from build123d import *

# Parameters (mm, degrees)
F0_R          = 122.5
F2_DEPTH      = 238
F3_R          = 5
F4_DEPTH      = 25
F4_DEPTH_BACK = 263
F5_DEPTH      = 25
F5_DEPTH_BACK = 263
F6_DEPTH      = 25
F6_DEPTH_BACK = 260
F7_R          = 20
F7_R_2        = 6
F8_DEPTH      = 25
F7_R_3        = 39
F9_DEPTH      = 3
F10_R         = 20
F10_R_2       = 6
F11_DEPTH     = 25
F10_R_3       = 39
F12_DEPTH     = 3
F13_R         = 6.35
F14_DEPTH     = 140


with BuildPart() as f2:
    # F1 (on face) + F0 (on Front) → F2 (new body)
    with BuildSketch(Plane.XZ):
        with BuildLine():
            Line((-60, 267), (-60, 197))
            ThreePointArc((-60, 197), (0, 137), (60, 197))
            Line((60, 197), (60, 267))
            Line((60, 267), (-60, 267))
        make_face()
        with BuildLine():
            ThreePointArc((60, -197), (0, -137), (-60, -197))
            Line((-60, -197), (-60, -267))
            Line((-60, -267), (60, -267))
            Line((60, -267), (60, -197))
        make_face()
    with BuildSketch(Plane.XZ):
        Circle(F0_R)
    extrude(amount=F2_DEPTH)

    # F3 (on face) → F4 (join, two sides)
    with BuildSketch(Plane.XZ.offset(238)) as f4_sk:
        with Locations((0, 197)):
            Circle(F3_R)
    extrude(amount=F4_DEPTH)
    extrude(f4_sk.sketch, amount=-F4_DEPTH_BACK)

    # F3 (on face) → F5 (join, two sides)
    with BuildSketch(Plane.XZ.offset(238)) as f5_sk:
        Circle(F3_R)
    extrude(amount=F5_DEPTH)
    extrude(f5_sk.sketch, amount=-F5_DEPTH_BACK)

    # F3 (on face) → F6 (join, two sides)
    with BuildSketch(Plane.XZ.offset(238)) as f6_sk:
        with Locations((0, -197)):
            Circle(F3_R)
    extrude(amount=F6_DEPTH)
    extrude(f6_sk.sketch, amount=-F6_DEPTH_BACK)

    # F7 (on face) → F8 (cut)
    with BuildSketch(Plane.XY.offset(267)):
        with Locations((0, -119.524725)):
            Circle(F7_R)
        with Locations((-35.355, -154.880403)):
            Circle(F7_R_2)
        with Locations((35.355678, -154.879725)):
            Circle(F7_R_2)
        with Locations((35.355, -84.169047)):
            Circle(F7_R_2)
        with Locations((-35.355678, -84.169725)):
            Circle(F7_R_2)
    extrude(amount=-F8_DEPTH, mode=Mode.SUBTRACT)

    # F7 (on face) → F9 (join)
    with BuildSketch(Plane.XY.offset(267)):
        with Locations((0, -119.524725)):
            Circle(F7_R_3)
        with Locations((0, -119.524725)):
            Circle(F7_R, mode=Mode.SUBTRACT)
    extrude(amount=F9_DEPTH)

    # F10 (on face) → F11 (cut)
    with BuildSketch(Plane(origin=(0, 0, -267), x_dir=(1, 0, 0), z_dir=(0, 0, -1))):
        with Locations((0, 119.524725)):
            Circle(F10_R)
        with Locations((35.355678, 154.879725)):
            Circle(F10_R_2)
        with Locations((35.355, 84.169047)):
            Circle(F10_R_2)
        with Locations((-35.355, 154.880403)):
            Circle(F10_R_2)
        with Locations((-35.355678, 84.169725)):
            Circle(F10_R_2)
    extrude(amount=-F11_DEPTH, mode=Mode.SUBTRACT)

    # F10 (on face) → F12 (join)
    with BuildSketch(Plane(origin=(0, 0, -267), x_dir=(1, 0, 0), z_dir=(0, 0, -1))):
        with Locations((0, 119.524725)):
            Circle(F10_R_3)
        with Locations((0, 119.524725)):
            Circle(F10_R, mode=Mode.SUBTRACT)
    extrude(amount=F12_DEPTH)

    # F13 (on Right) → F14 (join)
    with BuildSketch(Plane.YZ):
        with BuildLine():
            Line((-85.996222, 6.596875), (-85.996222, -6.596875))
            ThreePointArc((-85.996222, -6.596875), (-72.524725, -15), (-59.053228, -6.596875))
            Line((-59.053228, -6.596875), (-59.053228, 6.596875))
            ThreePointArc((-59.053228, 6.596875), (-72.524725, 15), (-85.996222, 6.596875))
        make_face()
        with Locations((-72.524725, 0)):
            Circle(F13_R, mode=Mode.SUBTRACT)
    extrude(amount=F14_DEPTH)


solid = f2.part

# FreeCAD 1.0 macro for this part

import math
import FreeCAD as App
import Part
import Sketcher
Q = App.Units.Quantity

doc = App.newDocument("Part")
body = doc.addObject("PartDesign::Body", "Body")
body.AllowCompound = True

# Sketch on XZ plane
sketch1 = body.newObject("Sketcher::SketchObject", "Sketch")
sketch1.AttachmentSupport = (doc.getObject("XZ_Plane"), [""])
sketch1.MapMode = "FlatFace"
sketch1.addGeometry([
    Part.LineSegment(App.Vector(-60, 267, 0), App.Vector(-60, 197, 0)),  # 0
    Part.ArcOfCircle(Part.Circle(App.Vector(0, 197, 0), App.Vector(0, 0, 1), 60), math.radians(180), math.radians(360)),  # 1
    Part.LineSegment(App.Vector(60, 197, 0), App.Vector(60, 267, 0)),  # 2
    Part.LineSegment(App.Vector(60, 267, 0), App.Vector(-60, 267, 0)),  # 3
    Part.ArcOfCircle(Part.Circle(App.Vector(0, -197, 0), App.Vector(0, 0, 1), 60), math.radians(0), math.radians(180)),  # 4
    Part.LineSegment(App.Vector(-60, -197, 0), App.Vector(-60, -267, 0)),  # 5
    Part.LineSegment(App.Vector(-60, -267, 0), App.Vector(60, -267, 0)),  # 6
    Part.LineSegment(App.Vector(60, -267, 0), App.Vector(60, -197, 0)),  # 7
    Part.Circle(App.Vector(0, 0, 0), App.Vector(0, 0, 1), 122.5),  # 8
], False)
sketch1.addConstraint([
    Sketcher.Constraint("Tangent", 0, 2, 1, 1),
    Sketcher.Constraint("Tangent", 1, 2, 2, 1),
    Sketcher.Constraint("Coincident", 2, 2, 3, 1),
    Sketcher.Constraint("Coincident", 3, 2, 0, 1),
    Sketcher.Constraint("Tangent", 4, 2, 5, 1),
    Sketcher.Constraint("Coincident", 5, 2, 6, 1),
    Sketcher.Constraint("Coincident", 6, 2, 7, 1),
    Sketcher.Constraint("Tangent", 7, 2, 4, 1),
    Sketcher.Constraint("Vertical", 0),
    Sketcher.Constraint("Vertical", 2),
    Sketcher.Constraint("Horizontal", 3),
    Sketcher.Constraint("Vertical", 5),
    Sketcher.Constraint("Horizontal", 6),
    Sketcher.Constraint("Vertical", 7),
    Sketcher.Constraint("Coincident", 8, 3, -1, 1),
    Sketcher.Constraint("Equal", 1, 4),
    Sketcher.Constraint("Symmetric", 1, 3, 4, 3, -1, 1),
    Sketcher.Constraint("Symmetric", 3, 2, 5, 2, -1),
    Sketcher.Constraint("Diameter", 8, Q("245 mm")),
    Sketcher.Constraint("Radius", 1, Q("60 mm")),
    Sketcher.Constraint("DistanceY", 0, 2, 0, 1, Q("70 mm")),
    Sketcher.Constraint("DistanceY", -1, 1, 1, 3, Q("197 mm")),
])
pad1 = body.newObject("PartDesign::Pad", "Pad")
pad1.Profile = sketch1
pad1.Length = 238

# Sketch on XZ plane
sketch2 = body.newObject("Sketcher::SketchObject", "Sketch001")
sketch2.AttachmentSupport = (doc.getObject("XZ_Plane"), [""])
sketch2.MapMode = "FlatFace"
sketch2.AttachmentOffset = App.Placement(App.Vector(0, 0, 238), App.Rotation())
sketch2.addGeometry(Part.Circle(App.Vector(0, 197, 0), App.Vector(0, 0, 1), 5), False)
sketch2.addConstraint([
    Sketcher.Constraint("PointOnObject", 0, 3, -2),
    Sketcher.Constraint("Diameter", 0, Q("10 mm")),
    Sketcher.Constraint("DistanceY", -1, 1, 0, 3, Q("197 mm")),
])
pad2 = body.newObject("PartDesign::Pad", "Pad001")
pad2.Profile = sketch2
pad2.Type = "TwoLengths"
pad2.Length = 25
pad2.Length2 = 263

# Sketch on XZ plane
sketch3 = body.newObject("Sketcher::SketchObject", "Sketch002")
sketch3.AttachmentSupport = (doc.getObject("XZ_Plane"), [""])
sketch3.MapMode = "FlatFace"
sketch3.AttachmentOffset = App.Placement(App.Vector(0, 0, 238), App.Rotation())
sketch3.addGeometry(Part.Circle(App.Vector(0, 0, 0), App.Vector(0, 0, 1), 5), False)
sketch3.addConstraint([
    Sketcher.Constraint("Coincident", 0, 3, -1, 1),
    Sketcher.Constraint("Diameter", 0, Q("10 mm")),
])
pad3 = body.newObject("PartDesign::Pad", "Pad002")
pad3.Profile = sketch3
pad3.Type = "TwoLengths"
pad3.Length = 25
pad3.Length2 = 263

# Sketch on XZ plane
sketch4 = body.newObject("Sketcher::SketchObject", "Sketch003")
sketch4.AttachmentSupport = (doc.getObject("XZ_Plane"), [""])
sketch4.MapMode = "FlatFace"
sketch4.AttachmentOffset = App.Placement(App.Vector(0, 0, 238), App.Rotation())
sketch4.addGeometry(Part.Circle(App.Vector(0, -197, 0), App.Vector(0, 0, 1), 5), False)
sketch4.addConstraint([
    Sketcher.Constraint("PointOnObject", 0, 3, -2),
    Sketcher.Constraint("Diameter", 0, Q("10 mm")),
    Sketcher.Constraint("DistanceY", 0, 3, -1, 1, Q("197 mm")),
])
pad4 = body.newObject("PartDesign::Pad", "Pad003")
pad4.Profile = sketch4
pad4.Type = "TwoLengths"
pad4.Length = 25
pad4.Length2 = 260

# Sketch on XY plane
sketch5 = body.newObject("Sketcher::SketchObject", "Sketch004")
sketch5.AttachmentSupport = (doc.getObject("XY_Plane"), [""])
sketch5.MapMode = "FlatFace"
sketch5.AttachmentOffset = App.Placement(App.Vector(0, 0, 267), App.Rotation())
sketch5.addGeometry([
    Part.Circle(App.Vector(0, -119.524725, 0), App.Vector(0, 0, 1), 20),  # 0
    Part.Circle(App.Vector(-35.355, -154.880403, 0), App.Vector(0, 0, 1), 6),  # 1
    Part.Circle(App.Vector(35.355678, -154.879725, 0), App.Vector(0, 0, 1), 6),  # 2
    Part.Circle(App.Vector(35.355, -84.169047, 0), App.Vector(0, 0, 1), 6),  # 3
    Part.Circle(App.Vector(-35.355678, -84.169725, 0), App.Vector(0, 0, 1), 6),  # 4
], False)
sketch5.addConstraint([
    Sketcher.Constraint("Equal", 1, 2),
    Sketcher.Constraint("Equal", 2, 3),
    Sketcher.Constraint("Equal", 3, 4),
    Sketcher.Constraint("PointOnObject", 0, 3, -2),
    Sketcher.Constraint("Diameter", 0, Q("40 mm")),
    Sketcher.Constraint("Diameter", 1, Q("12 mm")),
    Sketcher.Constraint("DistanceX", 1, 3, 3, 3, Q("70.71 mm")),
    Sketcher.Constraint("DistanceY", 2, 3, 4, 3, Q("70.71 mm")),
    Sketcher.Constraint("DistanceX", 1, 3, -1, 1, Q("35.355 mm")),
    Sketcher.Constraint("DistanceY", 2, 3, 0, 3, Q("35.355 mm")),
    Sketcher.Constraint("DistanceX", 1, 3, 2, 3, Q("70.710678 mm")),
    Sketcher.Constraint("DistanceY", 2, 3, 3, 3, Q("70.710678 mm")),
    Sketcher.Constraint("DistanceX", 4, 3, 1, 3, Q("0.000678 mm")),
    Sketcher.Constraint("DistanceY", 1, 3, 4, 3, Q("70.710678 mm")),
    Sketcher.Constraint("DistanceY", 0, 3, -1, 1, Q("119.524725 mm")),
])
pocket1 = body.newObject("PartDesign::Pocket", "Pocket")
pocket1.Profile = sketch5
pocket1.Length = 25

# Sketch on XY plane
sketch6 = body.newObject("Sketcher::SketchObject", "Sketch005")
sketch6.AttachmentSupport = (doc.getObject("XY_Plane"), [""])
sketch6.MapMode = "FlatFace"
sketch6.AttachmentOffset = App.Placement(App.Vector(0, 0, 267), App.Rotation())
sketch6.addGeometry([
    Part.Circle(App.Vector(0, -119.524725, 0), App.Vector(0, 0, 1), 39),
    Part.Circle(App.Vector(0, -119.524725, 0), App.Vector(0, 0, 1), 20),
], False)
sketch6.addConstraint([
    Sketcher.Constraint("Coincident", 1, 3, 0, 3),
    Sketcher.Constraint("PointOnObject", 0, 3, -2),
    Sketcher.Constraint("Diameter", 0, Q("78 mm")),
    Sketcher.Constraint("Diameter", 1, Q("40 mm")),
    Sketcher.Constraint("DistanceY", 0, 3, -1, 1, Q("119.524725 mm")),
])
pad5 = body.newObject("PartDesign::Pad", "Pad004")
pad5.Profile = sketch6
pad5.Length = 3

# Sketch on XY plane
sketch7 = body.newObject("Sketcher::SketchObject", "Sketch006")
sketch7.AttachmentSupport = (doc.getObject("XY_Plane"), [""])
sketch7.MapMode = "FlatFace"
sketch7.AttachmentOffset = App.Placement(App.Vector(0, 0, -267), App.Rotation())
sketch7.addGeometry([
    Part.Circle(App.Vector(0, -119.524725, 0), App.Vector(0, 0, 1), 20),  # 0
    Part.Circle(App.Vector(35.355678, -154.879725, 0), App.Vector(0, 0, 1), 6),  # 1
    Part.Circle(App.Vector(35.355, -84.169047, 0), App.Vector(0, 0, 1), 6),  # 2
    Part.Circle(App.Vector(-35.355, -154.880403, 0), App.Vector(0, 0, 1), 6),  # 3
    Part.Circle(App.Vector(-35.355678, -84.169725, 0), App.Vector(0, 0, 1), 6),  # 4
], False)
sketch7.addConstraint([
    Sketcher.Constraint("Equal", 1, 2),
    Sketcher.Constraint("Equal", 2, 3),
    Sketcher.Constraint("Equal", 3, 4),
    Sketcher.Constraint("PointOnObject", 0, 3, -2),
    Sketcher.Constraint("Diameter", 0, Q("40 mm")),
    Sketcher.Constraint("Diameter", 1, Q("12 mm")),
    Sketcher.Constraint("DistanceX", 3, 3, 2, 3, Q("70.71 mm")),
    Sketcher.Constraint("DistanceY", 1, 3, 4, 3, Q("70.71 mm")),
    Sketcher.Constraint("DistanceX", -1, 1, 2, 3, Q("35.355 mm")),
    Sketcher.Constraint("DistanceY", 1, 3, 0, 3, Q("35.355 mm")),
    Sketcher.Constraint("DistanceX", 2, 3, 1, 3, Q("0.000678 mm")),
    Sketcher.Constraint("DistanceY", 1, 3, 2, 3, Q("70.710678 mm")),
    Sketcher.Constraint("DistanceX", 4, 3, 2, 3, Q("70.710678 mm")),
    Sketcher.Constraint("DistanceY", 3, 3, 4, 3, Q("70.710678 mm")),
    Sketcher.Constraint("DistanceY", 0, 3, -1, 1, Q("119.524725 mm")),
])
pocket2 = body.newObject("PartDesign::Pocket", "Pocket001")
pocket2.Profile = sketch7
pocket2.Length = 25
pocket2.Reversed = True

# Sketch on XY plane
sketch8 = body.newObject("Sketcher::SketchObject", "Sketch007")
sketch8.AttachmentSupport = (doc.getObject("XY_Plane"), [""])
sketch8.MapMode = "FlatFace"
sketch8.AttachmentOffset = App.Placement(App.Vector(0, 0, -267), App.Rotation())
sketch8.addGeometry([
    Part.Circle(App.Vector(0, -119.524725, 0), App.Vector(0, 0, 1), 39),
    Part.Circle(App.Vector(0, -119.524725, 0), App.Vector(0, 0, 1), 20),
], False)
sketch8.addConstraint([
    Sketcher.Constraint("Coincident", 1, 3, 0, 3),
    Sketcher.Constraint("PointOnObject", 0, 3, -2),
    Sketcher.Constraint("Diameter", 0, Q("78 mm")),
    Sketcher.Constraint("Diameter", 1, Q("40 mm")),
    Sketcher.Constraint("DistanceY", 0, 3, -1, 1, Q("119.524725 mm")),
])
pad6 = body.newObject("PartDesign::Pad", "Pad005")
pad6.Profile = sketch8
pad6.Length = 3
pad6.Reversed = True

# Sketch on YZ plane
sketch9 = body.newObject("Sketcher::SketchObject", "Sketch008")
sketch9.AttachmentSupport = (doc.getObject("YZ_Plane"), [""])
sketch9.MapMode = "FlatFace"
sketch9.addGeometry([
    Part.LineSegment(App.Vector(-85.996222, 6.596875, 0), App.Vector(-85.996222, -6.596875, 0)),  # 0
    Part.ArcOfCircle(Part.Circle(App.Vector(-72.524725, -0.000001, 0), App.Vector(0, 0, 1), 14.999999), math.radians(-153.909412), math.radians(-26.090588)),  # 1
    Part.LineSegment(App.Vector(-59.053228, -6.596875, 0), App.Vector(-59.053228, 6.596875, 0)),  # 2
    Part.ArcOfCircle(Part.Circle(App.Vector(-72.524725, 0.000001, 0), App.Vector(0, 0, 1), 14.999999), math.radians(26.090588), math.radians(153.909412)),  # 3
    Part.Circle(App.Vector(-72.524725, 0, 0), App.Vector(0, 0, 1), 6.35),  # 4
], False)
sketch9.addConstraint([
    Sketcher.Constraint("Coincident", 0, 2, 1, 1),
    Sketcher.Constraint("Coincident", 1, 2, 2, 1),
    Sketcher.Constraint("Coincident", 2, 2, 3, 1),
    Sketcher.Constraint("Coincident", 3, 2, 0, 1),
    Sketcher.Constraint("Vertical", 0),
    Sketcher.Constraint("Vertical", 2),
    Sketcher.Constraint("Coincident", 3, 3, 1, 3),
    Sketcher.Constraint("Coincident", 4, 3, 1, 3),
    Sketcher.Constraint("Equal", 1, 3),
    Sketcher.Constraint("PointOnObject", 1, 3, -1),
    Sketcher.Constraint("Horizontal", 0, 2, 1, 2),
    Sketcher.Constraint("Radius", 1, Q("14.999999 mm")),
    Sketcher.Constraint("Diameter", 4, Q("12.7 mm")),
    Sketcher.Constraint("DistanceY", 0, 2, 0, 1, Q("13.19375 mm")),
    Sketcher.Constraint("DistanceX", 1, 3, -1, 1, Q("72.524725 mm")),
])
pad7 = body.newObject("PartDesign::Pad", "Pad006")
pad7.Profile = sketch9
pad7.Length = 140

doc.recompute()
